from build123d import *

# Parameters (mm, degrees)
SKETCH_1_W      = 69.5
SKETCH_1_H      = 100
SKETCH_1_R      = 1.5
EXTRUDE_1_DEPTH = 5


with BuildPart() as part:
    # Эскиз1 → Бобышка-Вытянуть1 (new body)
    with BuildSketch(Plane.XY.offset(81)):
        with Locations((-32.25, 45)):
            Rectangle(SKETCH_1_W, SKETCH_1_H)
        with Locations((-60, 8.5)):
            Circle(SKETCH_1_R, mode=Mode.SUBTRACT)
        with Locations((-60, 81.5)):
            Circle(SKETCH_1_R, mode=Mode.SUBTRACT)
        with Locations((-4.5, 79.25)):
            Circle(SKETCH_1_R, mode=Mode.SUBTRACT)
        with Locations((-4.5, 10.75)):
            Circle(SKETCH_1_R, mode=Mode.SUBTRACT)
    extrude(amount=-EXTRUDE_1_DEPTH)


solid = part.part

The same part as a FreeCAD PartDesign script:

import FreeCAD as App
import Part
import Sketcher
from FreeCAD import Vector


def add_polygon(sketch, points):
    """Adds a closed chain of lines whose ends are joined by coincident constraints."""
    first, n = sketch.GeometryCount, len(points)
    for a, b in zip(points, points[1:] + points[:1]):
        sketch.addGeometry(Part.LineSegment(App.Vector(*a, 0), App.Vector(*b, 0)), False)
    for i in range(n):
        sketch.addConstraint(Sketcher.Constraint("Coincident", first + i, 2, first + (i + 1) % n, 1))

doc = App.newDocument("Part")
body = doc.addObject("PartDesign::Body", "Body")

# Sketch on XY plane
sketch1 = body.newObject("Sketcher::SketchObject", "Sketch")
sketch1.AttachmentSupport = (doc.getObject("XY_Plane"), [""])
sketch1.MapMode = "FlatFace"
sketch1.AttachmentOffset = App.Placement(Vector(0, 0, 81), App.Rotation())
add_polygon(sketch1, [(-67, 95), (-67, -5), (2.5, -5), (2.5, 95)])  # lines 0-3
sketch1.addGeometry(Part.Circle(Vector(-60, 8.5, 0), Vector(0, 0, 1), 1.5), False)  # 4
sketch1.addGeometry(Part.Circle(Vector(-4.5, 10.8, 0), Vector(0, 0, 1), 1.5), False)  # 5
sketch1.addGeometry(Part.Circle(Vector(-60, 81.5, 0), Vector(0, 0, 1), 1.5), False)  # 6
sketch1.addGeometry(Part.Circle(Vector(-4.5, 79.2, 0), Vector(0, 0, 1), 1.5), False)  # 7
sketch1.addConstraint([
    Sketcher.Constraint("Vertical", 0),
    Sketcher.Constraint("Horizontal", 1),
    Sketcher.Constraint("Vertical", 2),
    Sketcher.Constraint("Horizontal", 3),
    Sketcher.Constraint("Equal", 4, 5),
    Sketcher.Constraint("Equal", 5, 6),
    Sketcher.Constraint("Equal", 6, 7),
    Sketcher.Constraint("Vertical", 4, 3, 6, 3),
    Sketcher.Constraint("Vertical", 5, 3, 7, 3),
    Sketcher.Constraint("Diameter", 4, 3.0),
    Sketcher.Constraint("DistanceY", 0, 2, 0, 1, 100.0),
    Sketcher.Constraint("DistanceX", 1, 1, 1, 2, 69.5),
    Sketcher.Constraint("DistanceX", 4, 3, -1, 1, 60.0),
    Sketcher.Constraint("DistanceX", 0, 2, -1, 1, 67.0),
    Sketcher.Constraint("DistanceY", 0, 2, -1, 1, 5.0),
    Sketcher.Constraint("DistanceY", 4, 3, 6, 3, 73.0),
    Sketcher.Constraint("DistanceX", 5, 3, 1, 2, 7.0),
    Sketcher.Constraint("DistanceY", -1, 1, 4, 3, 8.5),
    Sketcher.Constraint("DistanceY", 5, 3, 7, 3, 68.5),
    Sketcher.Constraint("DistanceY", -1, 1, 5, 3, 10.75),
])
pad1 = body.newObject("PartDesign::Pad", "Pad")
pad1.Profile = sketch1
pad1.Length = 5
pad1.Reversed = True

doc.recompute()
